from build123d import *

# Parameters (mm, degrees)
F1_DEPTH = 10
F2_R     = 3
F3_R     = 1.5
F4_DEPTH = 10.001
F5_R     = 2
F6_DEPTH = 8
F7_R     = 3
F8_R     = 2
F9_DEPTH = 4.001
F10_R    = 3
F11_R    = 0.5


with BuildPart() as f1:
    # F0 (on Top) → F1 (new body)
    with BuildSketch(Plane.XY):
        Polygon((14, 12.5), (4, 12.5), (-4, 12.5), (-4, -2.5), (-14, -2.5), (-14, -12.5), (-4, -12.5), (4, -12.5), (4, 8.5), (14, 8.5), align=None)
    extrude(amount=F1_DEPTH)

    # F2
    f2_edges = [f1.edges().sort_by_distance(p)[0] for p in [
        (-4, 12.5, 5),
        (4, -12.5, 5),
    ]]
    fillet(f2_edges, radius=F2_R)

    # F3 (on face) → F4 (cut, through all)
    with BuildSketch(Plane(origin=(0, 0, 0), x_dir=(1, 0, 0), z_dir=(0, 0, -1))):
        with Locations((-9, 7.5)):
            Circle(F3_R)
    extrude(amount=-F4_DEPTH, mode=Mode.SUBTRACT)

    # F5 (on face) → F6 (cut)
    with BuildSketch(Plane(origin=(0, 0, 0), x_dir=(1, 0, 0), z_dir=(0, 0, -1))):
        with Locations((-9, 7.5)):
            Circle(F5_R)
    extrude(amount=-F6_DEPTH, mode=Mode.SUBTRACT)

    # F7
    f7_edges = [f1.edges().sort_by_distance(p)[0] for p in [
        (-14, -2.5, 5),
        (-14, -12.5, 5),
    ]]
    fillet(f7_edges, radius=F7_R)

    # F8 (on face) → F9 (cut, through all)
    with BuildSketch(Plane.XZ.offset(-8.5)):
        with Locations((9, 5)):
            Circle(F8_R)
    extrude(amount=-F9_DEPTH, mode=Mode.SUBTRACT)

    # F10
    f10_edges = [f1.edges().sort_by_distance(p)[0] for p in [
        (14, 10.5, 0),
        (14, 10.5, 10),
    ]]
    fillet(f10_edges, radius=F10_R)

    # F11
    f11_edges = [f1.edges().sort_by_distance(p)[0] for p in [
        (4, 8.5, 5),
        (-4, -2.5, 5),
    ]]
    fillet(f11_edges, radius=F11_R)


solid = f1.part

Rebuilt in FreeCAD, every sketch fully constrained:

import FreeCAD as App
import Part
import Sketcher
from FreeCAD import Vector
Q = App.Units.Quantity


def edges_at(feature, points):
    """Names of the edges that pass closest to the given points."""
    edges = feature.Shape.Edges
    near = lambda p: min(range(len(edges)), key=lambda i: edges[i].distToShape(Part.Vertex(*p))[0])
    return sorted({f"Edge{near(p) + 1}" for p in points})

doc = App.newDocument("Part")
body = doc.addObject("PartDesign::Body", "Body")

sketch1 = doc.addObject("Sketcher::SketchObject", "Sketch")
body.addObject(sketch1)
sketch1.AttachmentSupport = (doc.XY_Plane, [""])
sketch1.MapMode = "FlatFace"
sketch1.addGeometry(Part.LineSegment(Vector(14, 12.5, 0), Vector(-4, 12.5, 0)), False)
sketch1.addGeometry(Part.LineSegment(Vector(-4, 12.5, 0), Vector(-4, -2.5, 0)), False)
sketch1.addGeometry(Part.LineSegment(Vector(-4, -2.5, 0), Vector(-14, -2.5, 0)), False)
sketch1.addGeometry(Part.LineSegment(Vector(-14, -2.5, 0), Vector(-14, -12.5, 0)), False)
sketch1.addGeometry(Part.LineSegment(Vector(-14, -12.5, 0), Vector(4, -12.5, 0)), False)
sketch1.addGeometry(Part.LineSegment(Vector(4, -12.5, 0), Vector(4, 8.5, 0)), False)
sketch1.addGeometry(Part.LineSegment(Vector(4, 8.5, 0), Vector(14, 8.5, 0)), False)
sketch1.addGeometry(Part.LineSegment(Vector(14, 8.5, 0), Vector(14, 12.5, 0)), False)
sketch1.addConstraint(Sketcher.Constraint("Coincident", 0, 2, 1, 1))
sketch1.addConstraint(Sketcher.Constraint("Coincident", 1, 2, 2, 1))
sketch1.addConstraint(Sketcher.Constraint("Coincident", 2, 2, 3, 1))
sketch1.addConstraint(Sketcher.Constraint("Coincident", 3, 2, 4, 1))
sketch1.addConstraint(Sketcher.Constraint("Coincident", 4, 2, 5, 1))
sketch1.addConstraint(Sketcher.Constraint("Coincident", 5, 2, 6, 1))
sketch1.addConstraint(Sketcher.Constraint("Coincident", 6, 2, 7, 1))
sketch1.addConstraint(Sketcher.Constraint("Coincident", 7, 2, 0, 1))
sketch1.addConstraint(Sketcher.Constraint("Horizontal", 0))
sketch1.addConstraint(Sketcher.Constraint("Vertical", 1))
sketch1.addConstraint(Sketcher.Constraint("Horizontal", 2))
sketch1.addConstraint(Sketcher.Constraint("Vertical", 3))
sketch1.addConstraint(Sketcher.Constraint("Horizontal", 4))
sketch1.addConstraint(Sketcher.Constraint("Vertical", 5))
sketch1.addConstraint(Sketcher.Constraint("Horizontal", 6))
sketch1.addConstraint(Sketcher.Constraint("Vertical", 7))
sketch1.addConstraint(Sketcher.Constraint("Symmetric", 0, 2, 4, 2, -1, 1))
sketch1.addConstraint(Sketcher.Constraint("Equal", 0, 4))
sketch1.addConstraint(Sketcher.Constraint("Equal", 6, 3))
sketch1.addConstraint(Sketcher.Constraint("DistanceX", 0, 2, 0, 1, Q("18 mm")))
sketch1.addConstraint(Sketcher.Constraint("DistanceX", 2, 2, 2, 1, Q("10 mm")))
sketch1.addConstraint(Sketcher.Constraint("DistanceY", 1, 2, 1, 1, Q("15 mm")))
sketch1.addConstraint(Sketcher.Constraint("DistanceY", 5, 1, 5, 2, Q("21 mm")))
pad1 = doc.addObject("PartDesign::Pad", "Pad")
body.addObject(pad1)
pad1.Profile = sketch1
pad1.Length = 10
doc.recompute()

fillet = doc.addObject("PartDesign::Fillet", "Fillet")
body.addObject(fillet)
fillet.Base = (pad1, edges_at(pad1, [(-4, 12.5, 5), (4, -12.5, 5)]))
fillet.Radius = 3

sketch2 = doc.addObject("Sketcher::SketchObject", "Sketch001")
body.addObject(sketch2)
sketch2.AttachmentSupport = (doc.XY_Plane, [""])
sketch2.MapMode = "FlatFace"
sketch2.addGeometry(Part.Circle(Vector(-9, -7.5, 0), Vector(0, 0, 1), 1.5), False)
sketch2.addConstraint(Sketcher.Constraint("Diameter", 0, Q("3 mm")))
sketch2.addConstraint(Sketcher.Constraint("DistanceX", 0, 3, -1, 1, Q("9 mm")))
sketch2.addConstraint(Sketcher.Constraint("DistanceY", 0, 3, -1, 1, Q("7.5 mm")))
pocket1 = doc.addObject("PartDesign::Pocket", "Pocket")
body.addObject(pocket1)
pocket1.Profile = sketch2
pocket1.Type = "ThroughAll"
pocket1.Reversed = True

sketch3 = doc.addObject("Sketcher::SketchObject", "Sketch002")
body.addObject(sketch3)
sketch3.AttachmentSupport = (doc.XY_Plane, [""])
sketch3.MapMode = "FlatFace"
sketch3.addGeometry(Part.Circle(Vector(-9, -7.5, 0), Vector(0, 0, 1), 2), False)
sketch3.addConstraint(Sketcher.Constraint("Diameter", 0, Q("4 mm")))
sketch3.addConstraint(Sketcher.Constraint("DistanceX", 0, 3, -1, 1, Q("9 mm")))
sketch3.addConstraint(Sketcher.Constraint("DistanceY", 0, 3, -1, 1, Q("7.5 mm")))
pocket2 = doc.addObject("PartDesign::Pocket", "Pocket001")
body.addObject(pocket2)
pocket2.Profile = sketch3
pocket2.Length = 8
pocket2.Reversed = True
doc.recompute()

fillet2 = doc.addObject("PartDesign::Fillet", "Fillet001")
body.addObject(fillet2)
fillet2.Base = (pocket2, edges_at(pocket2, [(-14, -2.5, 5), (-14, -12.5, 5)]))
fillet2.Radius = 3

sketch4 = doc.addObject("Sketcher::SketchObject", "Sketch003")
body.addObject(sketch4)
sketch4.AttachmentSupport = (doc.XZ_Plane, [""])
sketch4.MapMode = "FlatFace"
sketch4.AttachmentOffset = App.Placement(Vector(0, 0, -8.5), App.Rotation())
sketch4.addGeometry(Part.Circle(Vector(9, 5, 0), Vector(0, 0, 1), 2), False)
sketch4.addConstraint(Sketcher.Constraint("Diameter", 0, Q("4 mm")))
sketch4.addConstraint(Sketcher.Constraint("DistanceX", -1, 1, 0, 3, Q("9 mm")))
sketch4.addConstraint(Sketcher.Constraint("DistanceY", -1, 1, 0, 3, Q("5 mm")))
pocket3 = doc.addObject("PartDesign::Pocket", "Pocket002")
body.addObject(pocket3)
pocket3.Profile = sketch4
pocket3.Type = "ThroughAll"
doc.recompute()

fillet3 = doc.addObject("PartDesign::Fillet", "Fillet002")
body.addObject(fillet3)
fillet3.Base = (pocket3, edges_at(pocket3, [(14, 10.5, 0), (14, 10.5, 10)]))
fillet3.Radius = 3
doc.recompute()

fillet4 = doc.addObject("PartDesign::Fillet", "Fillet003")
body.addObject(fillet4)
fillet4.Base = (fillet3, edges_at(fillet3, [(4, 8.5, 5), (-4, -2.5, 5)]))
fillet4.Radius = 0.5

doc.recompute()
